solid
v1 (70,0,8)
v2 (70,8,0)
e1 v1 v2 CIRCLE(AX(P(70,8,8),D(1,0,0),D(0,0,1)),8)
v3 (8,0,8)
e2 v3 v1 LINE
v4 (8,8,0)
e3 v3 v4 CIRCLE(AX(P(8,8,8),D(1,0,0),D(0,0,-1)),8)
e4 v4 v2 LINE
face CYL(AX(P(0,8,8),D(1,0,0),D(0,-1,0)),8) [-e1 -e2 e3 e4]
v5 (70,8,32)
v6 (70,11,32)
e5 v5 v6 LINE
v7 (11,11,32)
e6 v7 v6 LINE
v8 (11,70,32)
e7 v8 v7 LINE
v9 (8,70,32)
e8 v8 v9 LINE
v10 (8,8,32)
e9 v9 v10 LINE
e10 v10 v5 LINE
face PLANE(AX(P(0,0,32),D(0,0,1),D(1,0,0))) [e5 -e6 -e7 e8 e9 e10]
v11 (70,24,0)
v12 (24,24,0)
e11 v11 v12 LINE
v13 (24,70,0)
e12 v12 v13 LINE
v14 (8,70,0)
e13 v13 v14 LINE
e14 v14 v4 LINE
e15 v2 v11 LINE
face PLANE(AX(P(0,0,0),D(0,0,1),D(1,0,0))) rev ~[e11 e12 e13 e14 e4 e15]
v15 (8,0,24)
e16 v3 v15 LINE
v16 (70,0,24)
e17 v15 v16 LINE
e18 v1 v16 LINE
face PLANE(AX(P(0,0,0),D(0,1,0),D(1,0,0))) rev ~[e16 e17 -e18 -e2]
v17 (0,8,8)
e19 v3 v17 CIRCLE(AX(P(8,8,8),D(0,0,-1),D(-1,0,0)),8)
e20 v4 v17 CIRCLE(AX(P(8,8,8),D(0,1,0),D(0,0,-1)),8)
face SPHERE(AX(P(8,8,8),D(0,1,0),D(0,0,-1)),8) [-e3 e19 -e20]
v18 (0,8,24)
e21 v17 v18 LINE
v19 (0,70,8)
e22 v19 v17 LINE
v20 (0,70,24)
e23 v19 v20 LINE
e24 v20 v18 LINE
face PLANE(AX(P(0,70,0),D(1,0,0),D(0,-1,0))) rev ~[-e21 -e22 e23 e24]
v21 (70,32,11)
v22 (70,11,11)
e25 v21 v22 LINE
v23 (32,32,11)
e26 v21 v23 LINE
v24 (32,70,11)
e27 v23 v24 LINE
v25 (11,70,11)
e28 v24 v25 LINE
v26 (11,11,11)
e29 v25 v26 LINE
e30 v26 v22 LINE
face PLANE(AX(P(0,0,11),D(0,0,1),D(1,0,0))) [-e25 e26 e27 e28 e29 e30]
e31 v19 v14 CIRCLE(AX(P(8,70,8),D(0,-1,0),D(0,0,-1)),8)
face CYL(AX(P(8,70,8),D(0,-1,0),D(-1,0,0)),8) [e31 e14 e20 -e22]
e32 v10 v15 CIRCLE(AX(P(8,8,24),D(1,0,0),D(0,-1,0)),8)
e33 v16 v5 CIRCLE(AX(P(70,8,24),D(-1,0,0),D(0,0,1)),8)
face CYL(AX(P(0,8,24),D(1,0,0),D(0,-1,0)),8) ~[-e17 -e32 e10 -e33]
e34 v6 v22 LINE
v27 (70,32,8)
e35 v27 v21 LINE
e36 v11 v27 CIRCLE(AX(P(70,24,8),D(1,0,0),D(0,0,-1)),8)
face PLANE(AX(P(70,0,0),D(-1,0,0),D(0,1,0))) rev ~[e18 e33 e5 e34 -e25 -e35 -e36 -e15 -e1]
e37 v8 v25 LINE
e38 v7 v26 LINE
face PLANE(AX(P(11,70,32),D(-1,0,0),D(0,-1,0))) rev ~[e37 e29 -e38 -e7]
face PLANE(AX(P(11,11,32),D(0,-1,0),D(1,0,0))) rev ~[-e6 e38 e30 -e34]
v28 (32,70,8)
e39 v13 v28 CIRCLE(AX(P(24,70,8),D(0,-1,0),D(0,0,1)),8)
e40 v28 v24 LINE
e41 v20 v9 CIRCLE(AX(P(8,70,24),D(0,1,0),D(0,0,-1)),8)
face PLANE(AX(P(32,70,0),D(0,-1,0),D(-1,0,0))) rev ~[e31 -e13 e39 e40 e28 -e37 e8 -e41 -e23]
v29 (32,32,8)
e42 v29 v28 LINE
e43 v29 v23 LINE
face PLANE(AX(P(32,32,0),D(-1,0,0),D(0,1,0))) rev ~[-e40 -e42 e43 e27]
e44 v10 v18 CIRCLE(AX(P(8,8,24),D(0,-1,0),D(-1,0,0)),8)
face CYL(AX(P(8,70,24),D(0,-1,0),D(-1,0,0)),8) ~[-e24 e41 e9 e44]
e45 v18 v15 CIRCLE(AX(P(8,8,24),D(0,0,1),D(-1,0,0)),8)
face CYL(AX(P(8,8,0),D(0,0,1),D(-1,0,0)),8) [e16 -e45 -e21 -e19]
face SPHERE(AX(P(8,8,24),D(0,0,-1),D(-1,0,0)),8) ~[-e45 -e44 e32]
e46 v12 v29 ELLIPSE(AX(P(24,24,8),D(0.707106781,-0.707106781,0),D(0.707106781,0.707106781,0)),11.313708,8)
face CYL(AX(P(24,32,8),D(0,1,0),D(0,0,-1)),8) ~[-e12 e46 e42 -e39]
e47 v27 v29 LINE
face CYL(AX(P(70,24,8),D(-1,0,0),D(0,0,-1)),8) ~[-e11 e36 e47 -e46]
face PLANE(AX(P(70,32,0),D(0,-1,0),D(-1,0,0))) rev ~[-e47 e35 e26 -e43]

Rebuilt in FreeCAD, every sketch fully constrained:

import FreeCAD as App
import Part
import Sketcher

V = App.Vector
Q = App.Units.Quantity


def edges_at(feature, points):
    """Names of the edges that pass closest to the given points."""
    edges = feature.Shape.Edges
    near = lambda p: min(range(len(edges)), key=lambda i: edges[i].distToShape(Part.Vertex(*p))[0])
    return sorted({f"Edge{near(p) + 1}" for p in points})


def add_polygon(sketch, points):
    """Adds a closed chain of lines whose ends are joined by coincident constraints."""
    first, n = sketch.GeometryCount, len(points)
    for a, b in zip(points, points[1:] + points[:1]):
        sketch.addGeometry(Part.LineSegment(App.Vector(*a, 0), App.Vector(*b, 0)), False)
    for i in range(n):
        sketch.addConstraint(Sketcher.Constraint("Coincident", first + i, 2, first + (i + 1) % n, 1))

doc = App.newDocument("Part")
body = doc.addObject("PartDesign::Body", "Body")

# Sketch on XY plane
sketch1 = doc.addObject("Sketcher::SketchObject", "Sketch")
body.addObject(sketch1)
sketch1.AttachmentSupport = (doc.XY_Plane, [""])
sketch1.MapMode = "FlatFace"
add_polygon(sketch1, [(0, 70), (0, 0), (70, 0), (70, 32), (32, 32), (32, 70)])  # lines 0-5
sketch1.addConstraint([
    Sketcher.Constraint("Vertical", 0),
    Sketcher.Constraint("Horizontal", 1),
    Sketcher.Constraint("Vertical", 2),
    Sketcher.Constraint("Horizontal", 3),
    Sketcher.Constraint("Vertical", 4),
    Sketcher.Constraint("Horizontal", 5),
    Sketcher.Constraint("Coincident", 0, 2, -1, 1),
    Sketcher.Constraint("Equal", 1, 0),
    Sketcher.Constraint("Equal", 5, 2),
    Sketcher.Constraint("DistanceX", 1, 1, 1, 2, Q("70 mm")),
    Sketcher.Constraint("DistanceX", 5, 2, 5, 1, Q("32 mm")),
])
pad1 = doc.addObject("PartDesign::Pad", "Pad")
body.addObject(pad1)
pad1.Profile = sketch1
pad1.Length = 32

# Sketch on XY plane
sketch2 = doc.addObject("Sketcher::SketchObject", "Sketch001")
body.addObject(sketch2)
sketch2.AttachmentSupport = (doc.XY_Plane, [""])
sketch2.MapMode = "FlatFace"
sketch2.AttachmentOffset = App.Placement(V(0, 0, 32), App.Rotation())
add_polygon(sketch2, [(11, 70), (11, 11), (70, 11), (70, 70)])  # lines 0-3
sketch2.addConstraint([
    Sketcher.Constraint("Vertical", 0),
    Sketcher.Constraint("Horizontal", 1),
    Sketcher.Constraint("Vertical", 2),
    Sketcher.Constraint("Horizontal", 3),
    Sketcher.Constraint("Equal", 3, 0),
    Sketcher.Constraint("DistanceX", 1, 1, 1, 2, Q("59 mm")),
    Sketcher.Constraint("DistanceX", -1, 1, 0, 2, Q("11 mm")),
    Sketcher.Constraint("DistanceY", -1, 1, 0, 2, Q("11 mm")),
])
pocket1 = doc.addObject("PartDesign::Pocket", "Pocket")
body.addObject(pocket1)
pocket1.Profile = sketch2
pocket1.Length = 21
doc.recompute()

fillet = doc.addObject("PartDesign::Fillet", "Fillet")
body.addObject(fillet)
fillet.Base = (pocket1, edges_at(pocket1, [
    (32, 51, 0),
    (51, 32, 0),
    (0, 35, 0),
    (35, 0, 0),
    (0, 0, 16),
    (0, 35, 32),
    (35, 0, 32),
]))
fillet.Radius = 8

doc.recompute()
